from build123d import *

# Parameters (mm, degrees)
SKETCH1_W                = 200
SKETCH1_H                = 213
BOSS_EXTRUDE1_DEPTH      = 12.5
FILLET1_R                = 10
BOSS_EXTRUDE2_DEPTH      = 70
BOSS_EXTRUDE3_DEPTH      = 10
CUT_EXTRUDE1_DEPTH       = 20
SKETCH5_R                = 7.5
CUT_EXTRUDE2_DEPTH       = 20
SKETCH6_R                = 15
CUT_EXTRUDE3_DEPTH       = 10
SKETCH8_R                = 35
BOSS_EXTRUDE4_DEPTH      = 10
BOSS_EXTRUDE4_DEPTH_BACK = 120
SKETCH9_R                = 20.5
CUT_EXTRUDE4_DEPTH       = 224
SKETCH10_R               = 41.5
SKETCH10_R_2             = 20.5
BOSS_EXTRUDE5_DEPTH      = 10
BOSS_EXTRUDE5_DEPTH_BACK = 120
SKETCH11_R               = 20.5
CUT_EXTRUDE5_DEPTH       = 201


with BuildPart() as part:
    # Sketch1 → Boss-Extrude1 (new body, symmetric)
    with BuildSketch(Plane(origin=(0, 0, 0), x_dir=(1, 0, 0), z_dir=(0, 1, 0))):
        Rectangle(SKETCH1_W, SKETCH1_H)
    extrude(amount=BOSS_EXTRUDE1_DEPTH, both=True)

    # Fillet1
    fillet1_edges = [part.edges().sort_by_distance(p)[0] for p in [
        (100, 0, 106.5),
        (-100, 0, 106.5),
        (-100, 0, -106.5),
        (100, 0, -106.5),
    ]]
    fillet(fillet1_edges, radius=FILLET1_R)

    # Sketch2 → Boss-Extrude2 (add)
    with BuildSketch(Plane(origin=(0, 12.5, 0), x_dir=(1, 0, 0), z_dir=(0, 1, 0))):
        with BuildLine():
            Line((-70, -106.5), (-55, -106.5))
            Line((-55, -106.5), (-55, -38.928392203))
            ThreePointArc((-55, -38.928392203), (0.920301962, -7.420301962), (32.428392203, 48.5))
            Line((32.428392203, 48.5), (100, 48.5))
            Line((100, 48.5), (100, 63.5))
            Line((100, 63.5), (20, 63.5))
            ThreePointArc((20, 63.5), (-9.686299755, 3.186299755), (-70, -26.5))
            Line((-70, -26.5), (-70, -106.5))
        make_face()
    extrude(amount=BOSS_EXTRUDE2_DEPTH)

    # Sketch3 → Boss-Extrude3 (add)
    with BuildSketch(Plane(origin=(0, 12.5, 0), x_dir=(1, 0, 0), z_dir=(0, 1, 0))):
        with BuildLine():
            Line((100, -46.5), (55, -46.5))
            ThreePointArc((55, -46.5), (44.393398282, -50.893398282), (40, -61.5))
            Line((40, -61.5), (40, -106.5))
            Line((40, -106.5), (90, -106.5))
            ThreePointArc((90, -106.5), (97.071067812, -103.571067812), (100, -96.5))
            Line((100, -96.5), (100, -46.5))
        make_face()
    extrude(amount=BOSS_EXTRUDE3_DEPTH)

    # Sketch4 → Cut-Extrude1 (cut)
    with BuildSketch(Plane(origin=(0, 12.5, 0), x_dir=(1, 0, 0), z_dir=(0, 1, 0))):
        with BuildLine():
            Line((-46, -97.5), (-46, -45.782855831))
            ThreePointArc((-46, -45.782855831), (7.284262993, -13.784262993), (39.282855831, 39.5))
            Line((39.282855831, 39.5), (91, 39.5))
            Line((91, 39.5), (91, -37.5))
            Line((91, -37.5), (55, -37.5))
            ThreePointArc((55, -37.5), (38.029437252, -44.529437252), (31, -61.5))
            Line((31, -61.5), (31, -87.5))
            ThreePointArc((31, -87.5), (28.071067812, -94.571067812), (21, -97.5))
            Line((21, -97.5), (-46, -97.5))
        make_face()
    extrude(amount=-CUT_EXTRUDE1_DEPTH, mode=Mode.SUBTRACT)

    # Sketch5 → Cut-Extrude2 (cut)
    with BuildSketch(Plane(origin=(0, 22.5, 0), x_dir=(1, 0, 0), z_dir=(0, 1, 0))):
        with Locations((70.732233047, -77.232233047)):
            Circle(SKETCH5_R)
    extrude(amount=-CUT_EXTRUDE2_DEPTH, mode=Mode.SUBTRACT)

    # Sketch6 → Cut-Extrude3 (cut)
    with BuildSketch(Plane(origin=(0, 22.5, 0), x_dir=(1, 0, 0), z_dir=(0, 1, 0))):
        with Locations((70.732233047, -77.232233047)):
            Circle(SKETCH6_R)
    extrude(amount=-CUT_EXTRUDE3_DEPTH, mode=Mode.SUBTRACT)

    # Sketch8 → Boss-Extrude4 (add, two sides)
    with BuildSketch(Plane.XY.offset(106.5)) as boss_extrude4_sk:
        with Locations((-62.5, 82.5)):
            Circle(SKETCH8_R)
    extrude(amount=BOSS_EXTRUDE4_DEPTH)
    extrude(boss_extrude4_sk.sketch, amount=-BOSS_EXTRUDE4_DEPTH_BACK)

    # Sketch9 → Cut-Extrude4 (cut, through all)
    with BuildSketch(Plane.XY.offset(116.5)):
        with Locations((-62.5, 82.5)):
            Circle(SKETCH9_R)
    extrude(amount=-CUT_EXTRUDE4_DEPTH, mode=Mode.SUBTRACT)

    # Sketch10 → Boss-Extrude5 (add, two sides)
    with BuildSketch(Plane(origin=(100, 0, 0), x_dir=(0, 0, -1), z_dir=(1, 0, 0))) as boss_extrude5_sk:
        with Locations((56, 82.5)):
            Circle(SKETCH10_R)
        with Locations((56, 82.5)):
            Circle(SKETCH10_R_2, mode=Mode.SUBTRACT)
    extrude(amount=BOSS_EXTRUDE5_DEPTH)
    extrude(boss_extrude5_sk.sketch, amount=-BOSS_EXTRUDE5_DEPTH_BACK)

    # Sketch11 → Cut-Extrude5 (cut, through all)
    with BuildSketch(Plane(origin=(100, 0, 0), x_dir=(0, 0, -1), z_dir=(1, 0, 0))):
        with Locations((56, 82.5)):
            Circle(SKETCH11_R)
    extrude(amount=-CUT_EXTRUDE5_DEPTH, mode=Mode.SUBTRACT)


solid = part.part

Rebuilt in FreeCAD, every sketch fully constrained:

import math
import FreeCAD as App
import Part
import Sketcher
from FreeCAD import Vector


def edges_at(feature, points):
    """Names of the edges that pass closest to the given points."""
    edges = feature.Shape.Edges
    near = lambda p: min(range(len(edges)), key=lambda i: edges[i].distToShape(Part.Vertex(*p))[0])
    return sorted({f"Edge{near(p) + 1}" for p in points})


def add_polygon(sketch, points):
    """Adds a closed chain of lines whose ends are joined by coincident constraints."""
    first, n = sketch.GeometryCount, len(points)
    for a, b in zip(points, points[1:] + points[:1]):
        sketch.addGeometry(Part.LineSegment(App.Vector(*a, 0), App.Vector(*b, 0)), False)
    for i in range(n):
        sketch.addConstraint(Sketcher.Constraint("Coincident", first + i, 2, first + (i + 1) % n, 1))

doc = App.newDocument("Part")
params = doc.addObject("Spreadsheet::Sheet", "Params")
for row, (alias, value) in enumerate([
    ("sketch1_width", "200 mm"),
    ("sketch1_height", "213 mm"),
    ("pad1_length", "25 mm"),
    ("fillet_radius", "10 mm"),
    ("sketch2_width", "15 mm"),
    ("sketch2_width2", "80 mm"),
    ("pad2_length", "70 mm"),
    ("sketch3_radius", "15 mm"),
    ("sketch3_radius2", "10 mm"),
    ("sketch3_width", "45 mm"),
    ("pad3_length", "10 mm"),
    ("sketch4_radius", "10 mm"),
    ("sketch4_radius2", "24 mm"),
    ("sketch4_width", "67 mm"),
    ("sketch4_width2", "36 mm"),
    ("sketch4_height", "26 mm"),
    ("pocket1_length", "20 mm"),
    ("sketch5_diameter", "15 mm"),
    ("pocket2_length", "20 mm"),
    ("sketch6_diameter", "30 mm"),
    ("pocket3_length", "10 mm"),
    ("sketch7_diameter", "70 mm"),
    ("pad4_length", "10 mm"),
    ("pad4_length2", "120 mm"),
    ("sketch8_diameter", "41 mm"),
    ("sketch9_diameter", "83 mm"),
    ("sketch9_diameter2", "41 mm"),
    ("pad5_length", "10 mm"),
    ("pad5_length2", "120 mm"),
    ("sketch10_diameter", "41 mm"),
], start=1):
    params.set(f"A{row}", alias)
    params.set(f"B{row}", "=" + value)
    params.setAlias(f"B{row}", alias)

body = doc.addObject("PartDesign::Body", "Body")

sketch1 = body.newObject("Sketcher::SketchObject", "Sketch")
sketch1.AttachmentSupport = (doc.getObject("XZ_Plane"), [""])
sketch1.MapMode = "FlatFace"
add_polygon(sketch1, [(-100, -106), (-100, 106), (100, 106), (100, -106)])
sketch1.addConstraint([
    Sketcher.Constraint("Vertical", 0),
    Sketcher.Constraint("Horizontal", 1),
    Sketcher.Constraint("Vertical", 2),
    Sketcher.Constraint("Horizontal", 3),
    Sketcher.Constraint("Symmetric", 0, 2, 2, 2, -1, 1),
    Sketcher.Constraint("DistanceX", 1, 1, 1, 2, 200.0),
    Sketcher.Constraint("DistanceY", 0, 1, 0, 2, 213.0),
])
sketch1.setExpression("Constraints[9]", "Params.sketch1_width")
sketch1.setExpression("Constraints[10]", "Params.sketch1_height")
pad1 = body.newObject("PartDesign::Pad", "Pad")
pad1.Profile = sketch1
pad1.setExpression("Length", "Params.pad1_length")
pad1.Midplane = True
doc.recompute()

fillet = body.newObject("PartDesign::Fillet", "Fillet")
fillet.Base = (pad1, edges_at(pad1, [
    (100, 0, 106.5),
    (-100, 0, 106.5),
    (-100, 0, -106.5),
    (100, 0, -106.5),
]))
fillet.setExpression("Radius", "Params.fillet_radius")

sketch2 = body.newObject("Sketcher::SketchObject", "Sketch001")
sketch2.AttachmentSupport = (doc.getObject("XZ_Plane"), [""])
sketch2.MapMode = "FlatFace"
sketch2.AttachmentOffset = App.Placement(Vector(0, 0, -12.5), App.Rotation())
sketch2.addGeometry([
    Part.LineSegment(Vector(-70, 106, 0), Vector(-55, 106, 0)),
    Part.LineSegment(Vector(-55, 106, 0), Vector(-55, 39, 0)),
    Part.ArcOfCircle(Part.Circle(Vector(-83, -77, 0), Vector(0, 0, 1), 119), math.radians(14), math.radians(76)),
    Part.LineSegment(Vector(32, -48, 0), Vector(100, -48, 0)),
    Part.LineSegment(Vector(100, -48, 0), Vector(100, -64, 0)),
    Part.LineSegment(Vector(100, -64, 0), Vector(20, -64, 0)),
    Part.ArcOfCircle(Part.Circle(Vector(-83, -77, 0), Vector(0, 0, 1), 104), math.radians(7), math.radians(83)),
    Part.LineSegment(Vector(-70, 26, 0), Vector(-70, 106, 0)),
], False)
sketch2.addConstraint([
    Sketcher.Constraint("Coincident", 0, 2, 1, 1),
    Sketcher.Constraint("Coincident", 1, 2, 2, 2),
    Sketcher.Constraint("Coincident", 2, 1, 3, 1),
    Sketcher.Constraint("Coincident", 3, 2, 4, 1),
    Sketcher.Constraint("Coincident", 4, 2, 5, 1),
    Sketcher.Constraint("Coincident", 5, 2, 6, 1),
    Sketcher.Constraint("Coincident", 6, 2, 7, 1),
    Sketcher.Constraint("Coincident", 7, 2, 0, 1),
    Sketcher.Constraint("Horizontal", 0),
    Sketcher.Constraint("Vertical", 1),
    Sketcher.Constraint("Horizontal", 3),
    Sketcher.Constraint("Vertical", 4),
    Sketcher.Constraint("Horizontal", 5),
    Sketcher.Constraint("Vertical", 7),
    Sketcher.Constraint("Coincident", 6, 3, 2, 3),
    Sketcher.Constraint("Equal", 3, 1),
    Sketcher.Constraint("Equal", 0, 4),
    Sketcher.Constraint("Equal", 5, 7),
    Sketcher.Constraint("DistanceX", 0, 1, 0, 2, 15.0),
    Sketcher.Constraint("DistanceX", 5, 2, 5, 1, 80.0),
    Sketcher.Constraint("DistanceX", 0, 2, -1, 1, 55.0),
    Sketcher.Constraint("DistanceX", -1, 1, 3, 2, 100.0),
    Sketcher.Constraint("DistanceY", -1, 1, 0, 2, 106.5),
    Sketcher.Constraint("Radius", 2, 119.332356),
    Sketcher.Constraint("Radius", 6, 104.332356),
])
sketch2.setExpression("Constraints[18]", "Params.sketch2_width")
sketch2.setExpression("Constraints[19]", "Params.sketch2_width2")
pad2 = body.newObject("PartDesign::Pad", "Pad001")
pad2.Profile = sketch2
pad2.setExpression("Length", "Params.pad2_length")
pad2.Reversed = True

sketch3 = body.newObject("Sketcher::SketchObject", "Sketch002")
sketch3.AttachmentSupport = (doc.getObject("XZ_Plane"), [""])
sketch3.MapMode = "FlatFace"
sketch3.AttachmentOffset = App.Placement(Vector(0, 0, -12.5), App.Rotation())
sketch3.addGeometry([
    Part.LineSegment(Vector(100, 46, 0), Vector(55, 46, 0)),
    Part.ArcOfCircle(Part.Circle(Vector(55, 61, 0), Vector(0, 0, 1), 15), math.radians(180), math.radians(270)),
    Part.LineSegment(Vector(40, 62, 0), Vector(40, 106, 0)),
    Part.LineSegment(Vector(40, 106, 0), Vector(90, 106, 0)),
    Part.ArcOfCircle(Part.Circle(Vector(90, 96, 0), Vector(0, 0, 1), 10), math.radians(0), math.radians(90)),
    Part.LineSegment(Vector(100, 96, 0), Vector(100, 46, 0)),
], False)
sketch3.addConstraint([
    Sketcher.Constraint("Tangent", 0, 2, 1, 2),
    Sketcher.Constraint("Tangent", 1, 1, 2, 1),
    Sketcher.Constraint("Coincident", 2, 2, 3, 1),
    Sketcher.Constraint("Tangent", 3, 2, 4, 2),
    Sketcher.Constraint("Tangent", 4, 1, 5, 1),
    Sketcher.Constraint("Coincident", 5, 2, 0, 1),
    Sketcher.Constraint("Horizontal", 0),
    Sketcher.Constraint("Vertical", 2),
    Sketcher.Constraint("Horizontal", 3),
    Sketcher.Constraint("Vertical", 5),
    Sketcher.Constraint("Equal", 0, 2),
    Sketcher.Constraint("Radius", 1, 15.0),
    Sketcher.Constraint("Radius", 4, 10.0),
    Sketcher.Constraint("DistanceX", 0, 2, 0, 1, 45.0),
    Sketcher.Constraint("DistanceX", -1, 1, 1, 3, 55.0),
    Sketcher.Constraint("DistanceY", -1, 1, 1, 3, 61.5),
])
sketch3.setExpression("Constraints[11]", "Params.sketch3_radius")
sketch3.setExpression("Constraints[12]", "Params.sketch3_radius2")
sketch3.setExpression("Constraints[13]", "Params.sketch3_width")
pad3 = body.newObject("PartDesign::Pad", "Pad002")
pad3.Profile = sketch3
pad3.setExpression("Length", "Params.pad3_length")
pad3.Reversed = True

sketch4 = body.newObject("Sketcher::SketchObject", "Sketch003")
sketch4.AttachmentSupport = (doc.getObject("XZ_Plane"), [""])
sketch4.MapMode = "FlatFace"
sketch4.AttachmentOffset = App.Placement(Vector(0, 0, -12.5), App.Rotation())
sketch4.addGeometry([
    Part.LineSegment(Vector(-46, 46, 0), Vector(-46, 98, 0)),
    Part.LineSegment(Vector(-46, 98, 0), Vector(21, 98, 0)),
    Part.ArcOfCircle(Part.Circle(Vector(21, 88, 0), Vector(0, 0, 1), 10), math.radians(0), math.radians(90)),
    Part.LineSegment(Vector(31, 88, 0), Vector(31, 62, 0)),
    Part.ArcOfCircle(Part.Circle(Vector(55, 62, 0), Vector(0, 0, 1), 24), math.radians(-180), math.radians(-90)),
    Part.LineSegment(Vector(55, 38, 0), Vector(91, 38, 0)),
    Part.LineSegment(Vector(91, 38, 0), Vector(91, -40, 0)),
    Part.LineSegment(Vector(91, -40, 0), Vector(39, -40, 0)),
    Part.ArcOfCircle(Part.Circle(Vector(-83, -77, 0), Vector(0, 0, 1), 128), math.radians(17), math.radians(73)),
], False)
sketch4.addConstraint([
    Sketcher.Constraint("Coincident", 0, 2, 1, 1),
    Sketcher.Constraint("Tangent", 1, 2, 2, 2),
    Sketcher.Constraint("Tangent", 2, 1, 3, 1),
    Sketcher.Constraint("Tangent", 3, 2, 4, 1),
    Sketcher.Constraint("Tangent", 4, 2, 5, 1),
    Sketcher.Constraint("Coincident", 5, 2, 6, 1),
    Sketcher.Constraint("Coincident", 6, 2, 7, 1),
    Sketcher.Constraint("Coincident", 7, 2, 8, 1),
    Sketcher.Constraint("Coincident", 8, 2, 0, 1),
    Sketcher.Constraint("Vertical", 0),
    Sketcher.Constraint("Horizontal", 1),
    Sketcher.Constraint("Vertical", 3),
    Sketcher.Constraint("Horizontal", 5),
    Sketcher.Constraint("Vertical", 6),
    Sketcher.Constraint("Horizontal", 7),
    Sketcher.Constraint("Equal", 7, 0),
    Sketcher.Constraint("Radius", 2, 10.0),
    Sketcher.Constraint("Radius", 4, 24.0),
    Sketcher.Constraint("DistanceX", 1, 1, 1, 2, 67.0),
    Sketcher.Constraint("DistanceX", 5, 1, 5, 2, 36.0),
    Sketcher.Constraint("DistanceY", 3, 2, 3, 1, 26.0),
    Sketcher.Constraint("DistanceY", 6, 2, 6, 1, 77.0),
    Sketcher.Constraint("DistanceX", -1, 1, 2, 3, 21.0),
    Sketcher.Constraint("DistanceY", -1, 1, 2, 3, 87.5),
    Sketcher.Constraint("Radius", 8, 128.332356),
    Sketcher.Constraint("DistanceX", 7, 2, 7, 1, 51.717144),
])
sketch4.setExpression("Constraints[16]", "Params.sketch4_radius")
sketch4.setExpression("Constraints[17]", "Params.sketch4_radius2")
sketch4.setExpression("Constraints[18]", "Params.sketch4_width")
sketch4.setExpression("Constraints[19]", "Params.sketch4_width2")
sketch4.setExpression("Constraints[20]", "Params.sketch4_height")
pocket1 = body.newObject("PartDesign::Pocket", "Pocket")
pocket1.Profile = sketch4
pocket1.setExpression("Length", "Params.pocket1_length")
pocket1.Reversed = True

sketch5 = body.newObject("Sketcher::SketchObject", "Sketch004")
sketch5.AttachmentSupport = (doc.getObject("XZ_Plane"), [""])
sketch5.MapMode = "FlatFace"
sketch5.AttachmentOffset = App.Placement(Vector(0, 0, -22.5), App.Rotation())
sketch5.addGeometry(Part.Circle(Vector(71, 77, 0), Vector(0, 0, 1), 8), False)
sketch5.addConstraint([
    Sketcher.Constraint("Diameter", 0, 15.0),
    Sketcher.Constraint("DistanceX", -1, 1, 0, 3, 70.732233),
    Sketcher.Constraint("DistanceY", -1, 1, 0, 3, 77.232233),
])
sketch5.setExpression("Constraints[0]", "Params.sketch5_diameter")
pocket2 = body.newObject("PartDesign::Pocket", "Pocket001")
pocket2.Profile = sketch5
pocket2.setExpression("Length", "Params.pocket2_length")
pocket2.Reversed = True

sketch6 = body.newObject("Sketcher::SketchObject", "Sketch005")
sketch6.AttachmentSupport = (doc.getObject("XZ_Plane"), [""])
sketch6.MapMode = "FlatFace"
sketch6.AttachmentOffset = App.Placement(Vector(0, 0, -22.5), App.Rotation())
sketch6.addGeometry(Part.Circle(Vector(71, 77, 0), Vector(0, 0, 1), 15), False)
sketch6.addConstraint([
    Sketcher.Constraint("Diameter", 0, 30.0),
    Sketcher.Constraint("DistanceX", -1, 1, 0, 3, 70.732233),
    Sketcher.Constraint("DistanceY", -1, 1, 0, 3, 77.232233),
])
sketch6.setExpression("Constraints[0]", "Params.sketch6_diameter")
pocket3 = body.newObject("PartDesign::Pocket", "Pocket002")
pocket3.Profile = sketch6
pocket3.setExpression("Length", "Params.pocket3_length")
pocket3.Reversed = True

sketch7 = body.newObject("Sketcher::SketchObject", "Sketch006")
sketch7.AttachmentSupport = (doc.getObject("XY_Plane"), [""])
sketch7.MapMode = "FlatFace"
sketch7.AttachmentOffset = App.Placement(Vector(0, 0, 106.5), App.Rotation())
sketch7.addGeometry(Part.Circle(Vector(-62, 82, 0), Vector(0, 0, 1), 35), False)
sketch7.addConstraint([
    Sketcher.Constraint("Diameter", 0, 70.0),
    Sketcher.Constraint("DistanceX", 0, 3, -1, 1, 62.5),
    Sketcher.Constraint("DistanceY", -1, 1, 0, 3, 82.5),
])
sketch7.setExpression("Constraints[0]", "Params.sketch7_diameter")
pad4 = body.newObject("PartDesign::Pad", "Pad003")
pad4.Profile = sketch7
pad4.Type = "TwoLengths"
pad4.setExpression("Length", "Params.pad4_length")
pad4.setExpression("Length2", "Params.pad4_length2")

sketch8 = body.newObject("Sketcher::SketchObject", "Sketch007")
sketch8.AttachmentSupport = (doc.getObject("XY_Plane"), [""])
sketch8.MapMode = "FlatFace"
sketch8.AttachmentOffset = App.Placement(Vector(0, 0, 116.5), App.Rotation())
sketch8.addGeometry(Part.Circle(Vector(-62, 82, 0), Vector(0, 0, 1), 20), False)
sketch8.addConstraint([
    Sketcher.Constraint("Diameter", 0, 41.0),
    Sketcher.Constraint("DistanceX", 0, 3, -1, 1, 62.5),
    Sketcher.Constraint("DistanceY", -1, 1, 0, 3, 82.5),
])
sketch8.setExpression("Constraints[0]", "Params.sketch8_diameter")
pocket4 = body.newObject("PartDesign::Pocket", "Pocket003")
pocket4.Profile = sketch8
pocket4.Type = "ThroughAll"

sketch9 = body.newObject("Sketcher::SketchObject", "Sketch008")
sketch9.AttachmentSupport = (doc.getObject("YZ_Plane"), [""])
sketch9.MapMode = "FlatFace"
sketch9.AttachmentOffset = App.Placement(Vector(0, 0, 100), App.Rotation())
sketch9.addGeometry([
    Part.Circle(Vector(82, -56, 0), Vector(0, 0, 1), 42),
    Part.Circle(Vector(82, -56, 0), Vector(0, 0, 1), 20),
], False)
sketch9.addConstraint([
    Sketcher.Constraint("Coincident", 1, 3, 0, 3),
    Sketcher.Constraint("Diameter", 0, 83.0),
    Sketcher.Constraint("Diameter", 1, 41.0),
    Sketcher.Constraint("DistanceY", 0, 3, -1, 1, 56.0),
    Sketcher.Constraint("DistanceX", -1, 1, 0, 3, 82.5),
])
sketch9.setExpression("Constraints[1]", "Params.sketch9_diameter")
sketch9.setExpression("Constraints[2]", "Params.sketch9_diameter2")
pad5 = body.newObject("PartDesign::Pad", "Pad004")
pad5.Profile = sketch9
pad5.Type = "TwoLengths"
pad5.setExpression("Length", "Params.pad5_length")
pad5.setExpression("Length2", "Params.pad5_length2")

sketch10 = body.newObject("Sketcher::SketchObject", "Sketch009")
sketch10.AttachmentSupport = (doc.getObject("YZ_Plane"), [""])
sketch10.MapMode = "FlatFace"
sketch10.AttachmentOffset = App.Placement(Vector(0, 0, 100), App.Rotation())
sketch10.addGeometry(Part.Circle(Vector(82, -56, 0), Vector(0, 0, 1), 20), False)
sketch10.addConstraint([
    Sketcher.Constraint("Diameter", 0, 41.0),
    Sketcher.Constraint("DistanceY", 0, 3, -1, 1, 56.0),
    Sketcher.Constraint("DistanceX", -1, 1, 0, 3, 82.5),
])
sketch10.setExpression("Constraints[0]", "Params.sketch10_diameter")
pocket5 = body.newObject("PartDesign::Pocket", "Pocket004")
pocket5.Profile = sketch10
pocket5.Type = "ThroughAll"

doc.recompute()
